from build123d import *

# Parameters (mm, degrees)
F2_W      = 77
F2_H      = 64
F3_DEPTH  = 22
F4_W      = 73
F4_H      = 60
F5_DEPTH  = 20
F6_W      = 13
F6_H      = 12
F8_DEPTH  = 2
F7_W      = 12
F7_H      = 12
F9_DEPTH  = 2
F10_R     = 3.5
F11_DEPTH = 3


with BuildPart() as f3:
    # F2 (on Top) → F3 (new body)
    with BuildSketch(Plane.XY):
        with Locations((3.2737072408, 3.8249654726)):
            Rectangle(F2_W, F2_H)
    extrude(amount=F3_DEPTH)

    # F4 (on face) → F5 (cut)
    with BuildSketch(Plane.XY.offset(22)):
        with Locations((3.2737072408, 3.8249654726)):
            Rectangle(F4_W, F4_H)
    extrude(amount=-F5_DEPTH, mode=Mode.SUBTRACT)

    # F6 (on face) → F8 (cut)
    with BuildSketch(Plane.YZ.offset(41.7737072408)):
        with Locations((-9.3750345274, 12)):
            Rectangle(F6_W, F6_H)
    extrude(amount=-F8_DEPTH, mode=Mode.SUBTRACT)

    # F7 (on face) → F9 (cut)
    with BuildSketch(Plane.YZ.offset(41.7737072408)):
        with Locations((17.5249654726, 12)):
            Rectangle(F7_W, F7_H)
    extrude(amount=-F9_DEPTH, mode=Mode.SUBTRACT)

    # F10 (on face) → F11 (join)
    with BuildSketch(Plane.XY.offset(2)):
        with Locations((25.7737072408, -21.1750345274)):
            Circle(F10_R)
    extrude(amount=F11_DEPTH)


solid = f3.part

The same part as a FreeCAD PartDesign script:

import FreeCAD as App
import Part
import Sketcher

V = App.Vector
Q = App.Units.Quantity


def add_polygon(sketch, points):
    """Adds a closed chain of lines whose ends are joined by coincident constraints."""
    first, n = sketch.GeometryCount, len(points)
    for a, b in zip(points, points[1:] + points[:1]):
        sketch.addGeometry(Part.LineSegment(App.Vector(*a, 0), App.Vector(*b, 0)), False)
    for i in range(n):
        sketch.addConstraint(Sketcher.Constraint("Coincident", first + i, 2, first + (i + 1) % n, 1))

doc = App.newDocument("Part")
body = doc.addObject("PartDesign::Body", "Body")

sketch1 = doc.addObject("Sketcher::SketchObject", "Sketch")
body.addObject(sketch1)
sketch1.AttachmentSupport = (doc.XY_Plane, [""])
sketch1.MapMode = "FlatFace"
add_polygon(sketch1, [(-35, 36), (-35, -28), (42, -28), (42, 36)])
sketch1.addConstraint([
    Sketcher.Constraint("Vertical", 0),
    Sketcher.Constraint("Horizontal", 1),
    Sketcher.Constraint("Vertical", 2),
    Sketcher.Constraint("Horizontal", 3),
    Sketcher.Constraint("DistanceX", 1, 1, 1, 2, Q("77 mm")),
    Sketcher.Constraint("DistanceY", 0, 2, 0, 1, Q("64 mm")),
    Sketcher.Constraint("DistanceX", 0, 2, -1, 1, Q("35.226293 mm")),
    Sketcher.Constraint("DistanceY", 0, 2, -1, 1, Q("28.175035 mm")),
])
pad1 = doc.addObject("PartDesign::Pad", "Pad")
body.addObject(pad1)
pad1.Profile = sketch1
pad1.Length = 22

sketch2 = doc.addObject("Sketcher::SketchObject", "Sketch001")
body.addObject(sketch2)
sketch2.AttachmentSupport = (doc.XY_Plane, [""])
sketch2.MapMode = "FlatFace"
sketch2.AttachmentOffset = App.Placement(V(0, 0, 22), App.Rotation())
add_polygon(sketch2, [(-33, 34), (-33, -26), (40, -26), (40, 34)])
sketch2.addConstraint([
    Sketcher.Constraint("Vertical", 0),
    Sketcher.Constraint("Horizontal", 1),
    Sketcher.Constraint("Vertical", 2),
    Sketcher.Constraint("Horizontal", 3),
    Sketcher.Constraint("DistanceX", 1, 1, 1, 2, Q("73 mm")),
    Sketcher.Constraint("DistanceY", 0, 2, 0, 1, Q("60 mm")),
    Sketcher.Constraint("DistanceX", 0, 2, -1, 1, Q("33.226293 mm")),
    Sketcher.Constraint("DistanceY", 0, 2, -1, 1, Q("26.175035 mm")),
])
pocket1 = doc.addObject("PartDesign::Pocket", "Pocket")
body.addObject(pocket1)
pocket1.Profile = sketch2
pocket1.Length = 20

sketch3 = doc.addObject("Sketcher::SketchObject", "Sketch002")
body.addObject(sketch3)
sketch3.AttachmentSupport = (doc.YZ_Plane, [""])
sketch3.MapMode = "FlatFace"
sketch3.AttachmentOffset = App.Placement(V(0, 0, 41.773707), App.Rotation())
add_polygon(sketch3, [(-16, 18), (-16, 6), (-3, 6), (-3, 18)])
sketch3.addConstraint([
    Sketcher.Constraint("Vertical", 0),
    Sketcher.Constraint("Horizontal", 1),
    Sketcher.Constraint("Vertical", 2),
    Sketcher.Constraint("Horizontal", 3),
    Sketcher.Constraint("DistanceX", 1, 1, 1, 2, Q("13 mm")),
    Sketcher.Constraint("DistanceY", 0, 2, 0, 1, Q("12 mm")),
    Sketcher.Constraint("DistanceY", -1, 1, 0, 2, Q("6 mm")),
    Sketcher.Constraint("DistanceX", 0, 2, -1, 1, Q("15.875035 mm")),
])
pocket2 = doc.addObject("PartDesign::Pocket", "Pocket001")
body.addObject(pocket2)
pocket2.Profile = sketch3
pocket2.Length = 2

sketch4 = doc.addObject("Sketcher::SketchObject", "Sketch003")
body.addObject(sketch4)
sketch4.AttachmentSupport = (doc.YZ_Plane, [""])
sketch4.MapMode = "FlatFace"
sketch4.AttachmentOffset = App.Placement(V(0, 0, 41.773707), App.Rotation())
add_polygon(sketch4, [(12, 18), (12, 6), (24, 6), (24, 18)])
sketch4.addConstraint([
    Sketcher.Constraint("Vertical", 0),
    Sketcher.Constraint("Horizontal", 1),
    Sketcher.Constraint("Vertical", 2),
    Sketcher.Constraint("Horizontal", 3),
    Sketcher.Constraint("Equal", 3, 0),
    Sketcher.Constraint("DistanceX", 1, 1, 1, 2, Q("12 mm")),
    Sketcher.Constraint("DistanceY", -1, 1, 0, 2, Q("6 mm")),
    Sketcher.Constraint("DistanceX", -1, 1, 0, 2, Q("11.524965 mm")),
])
pocket3 = doc.addObject("PartDesign::Pocket", "Pocket002")
body.addObject(pocket3)
pocket3.Profile = sketch4
pocket3.Length = 2

sketch5 = doc.addObject("Sketcher::SketchObject", "Sketch004")
body.addObject(sketch5)
sketch5.AttachmentSupport = (doc.XY_Plane, [""])
sketch5.MapMode = "FlatFace"
sketch5.AttachmentOffset = App.Placement(V(0, 0, 2), App.Rotation())
sketch5.addGeometry(Part.Circle(V(25.8, -21.2, 0), V(0, 0, 1), 3.5), False)
sketch5.addConstraint([
    Sketcher.Constraint("Diameter", 0, Q("7 mm")),
    Sketcher.Constraint("DistanceX", -1, 1, 0, 3, Q("25.773707 mm")),
    Sketcher.Constraint("DistanceY", 0, 3, -1, 1, Q("21.175035 mm")),
])
pad2 = doc.addObject("PartDesign::Pad", "Pad001")
body.addObject(pad2)
pad2.Profile = sketch5
pad2.Length = 3

doc.recompute()
